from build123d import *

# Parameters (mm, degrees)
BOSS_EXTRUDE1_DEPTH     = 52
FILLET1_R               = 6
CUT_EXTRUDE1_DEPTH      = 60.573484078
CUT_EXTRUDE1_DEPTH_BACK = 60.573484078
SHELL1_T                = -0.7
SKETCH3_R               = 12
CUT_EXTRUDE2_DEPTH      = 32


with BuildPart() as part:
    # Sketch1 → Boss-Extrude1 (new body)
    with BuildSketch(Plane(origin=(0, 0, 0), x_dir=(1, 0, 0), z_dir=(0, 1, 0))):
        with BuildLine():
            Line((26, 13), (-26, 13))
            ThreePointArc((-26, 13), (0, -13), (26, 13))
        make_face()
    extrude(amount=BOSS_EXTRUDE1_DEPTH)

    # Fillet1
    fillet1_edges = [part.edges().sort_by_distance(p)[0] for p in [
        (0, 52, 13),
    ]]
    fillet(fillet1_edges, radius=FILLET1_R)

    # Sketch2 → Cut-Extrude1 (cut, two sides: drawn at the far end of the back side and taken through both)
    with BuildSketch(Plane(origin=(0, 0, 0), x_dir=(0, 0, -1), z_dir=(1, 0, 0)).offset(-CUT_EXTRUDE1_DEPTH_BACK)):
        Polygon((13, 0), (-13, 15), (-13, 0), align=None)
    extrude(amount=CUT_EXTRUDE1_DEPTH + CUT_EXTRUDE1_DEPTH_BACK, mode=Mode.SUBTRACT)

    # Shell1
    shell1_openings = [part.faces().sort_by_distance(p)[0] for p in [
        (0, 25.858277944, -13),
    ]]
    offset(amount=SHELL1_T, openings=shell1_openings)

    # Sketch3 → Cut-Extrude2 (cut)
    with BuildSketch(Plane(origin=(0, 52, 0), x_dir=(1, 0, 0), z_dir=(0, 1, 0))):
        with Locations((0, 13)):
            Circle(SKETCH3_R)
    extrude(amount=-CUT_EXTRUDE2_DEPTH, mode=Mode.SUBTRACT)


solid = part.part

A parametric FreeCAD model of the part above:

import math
import FreeCAD as App
import Part
import Sketcher
from FreeCAD import Vector


def edges_at(feature, points):
    """Names of the edges that pass closest to the given points."""
    edges = feature.Shape.Edges
    near = lambda p: min(range(len(edges)), key=lambda i: edges[i].distToShape(Part.Vertex(*p))[0])
    return sorted({f"Edge{near(p) + 1}" for p in points})


def faces_at(feature, points):
    """Names of the faces that lie closest to the given points."""
    faces = feature.Shape.Faces
    near = lambda p: min(range(len(faces)), key=lambda i: faces[i].distToShape(Part.Vertex(*p))[0])
    return sorted({f"Face{near(p) + 1}" for p in points})

doc = App.newDocument("Part")
body = doc.addObject("PartDesign::Body", "Body")

# Sketch on XZ plane
sketch1 = doc.addObject("Sketcher::SketchObject", "Sketch")
body.addObject(sketch1)
sketch1.AttachmentSupport = (doc.XZ_Plane, [""])
sketch1.MapMode = "FlatFace"
sketch1.addGeometry([
    Part.LineSegment(Vector(26, -13, 0), Vector(-26, -13, 0)),
    Part.ArcOfCircle(Part.Circle(Vector(0, -13, 0), Vector(0, 0, 1), 26), math.radians(0), math.radians(180)),
], False)
sketch1.addConstraint([
    Sketcher.Constraint("Coincident", 0, 1, 1, 1),
    Sketcher.Constraint("Coincident", 1, 2, 0, 2),
    Sketcher.Constraint("Horizontal", 0),
    Sketcher.Constraint("PointOnObject", 1, 3, -2),
    Sketcher.Constraint("Horizontal", 1, 3, 0, 1),
    Sketcher.Constraint("Radius", 1, 26.0),
    Sketcher.Constraint("DistanceY", 1, 3, -1, 1, 13.0),
])
pad1 = doc.addObject("PartDesign::Pad", "Pad")
body.addObject(pad1)
pad1.Profile = sketch1
pad1.Length = 52
pad1.Reversed = True
doc.recompute()

fillet = doc.addObject("PartDesign::Fillet", "Fillet")
body.addObject(fillet)
fillet.Base = (pad1, edges_at(pad1, [(0, 52, 13)]))
fillet.Radius = 6

# Sketch on YZ plane
sketch2 = doc.addObject("Sketcher::SketchObject", "Sketch001")
body.addObject(sketch2)
sketch2.AttachmentSupport = (doc.YZ_Plane, [""])
sketch2.MapMode = "FlatFace"
sketch2.addGeometry([
    Part.LineSegment(Vector(0, -13, 0), Vector(15, 13, 0)),
    Part.LineSegment(Vector(15, 13, 0), Vector(0, 13, 0)),
    Part.LineSegment(Vector(0, 13, 0), Vector(0, -13, 0)),
], False)
sketch2.addConstraint([
    Sketcher.Constraint("Coincident", 0, 2, 1, 1),
    Sketcher.Constraint("Coincident", 1, 2, 2, 1),
    Sketcher.Constraint("Coincident", 2, 2, 0, 1),
    Sketcher.Constraint("Horizontal", 1),
    Sketcher.Constraint("Vertical", 2),
    Sketcher.Constraint("Symmetric", 1, 2, 2, 2, -1, 1),
    Sketcher.Constraint("DistanceX", 1, 2, 1, 1, 15.0),
    Sketcher.Constraint("DistanceY", 2, 2, 2, 1, 26.0),
])
pocket1 = doc.addObject("PartDesign::Pocket", "Pocket")
body.addObject(pocket1)
pocket1.Profile = sketch2
pocket1.Type = "ThroughAll"
pocket1.Midplane = True
doc.recompute()

thickness = doc.addObject("PartDesign::Thickness", "Thickness")
body.addObject(thickness)
thickness.Base = (pocket1, faces_at(pocket1, [(0, 26, -13)]))
thickness.Value = 0.7
thickness.Reversed = True
thickness.Join = "Arc"

# Sketch on XZ plane
sketch3 = doc.addObject("Sketcher::SketchObject", "Sketch002")
body.addObject(sketch3)
sketch3.AttachmentSupport = (doc.XZ_Plane, [""])
sketch3.MapMode = "FlatFace"
sketch3.AttachmentOffset = App.Placement(Vector(0, 0, -52), App.Rotation())
sketch3.addGeometry(Part.Circle(Vector(0, -13, 0), Vector(0, 0, 1), 12), False)
sketch3.addConstraint([
    Sketcher.Constraint("PointOnObject", 0, 3, -2),
    Sketcher.Constraint("Diameter", 0, 24.0),
    Sketcher.Constraint("DistanceY", 0, 3, -1, 1, 13.0),
])
pocket2 = doc.addObject("PartDesign::Pocket", "Pocket001")
body.addObject(pocket2)
pocket2.Profile = sketch3
pocket2.Length = 32
pocket2.Reversed = True

doc.recompute()
